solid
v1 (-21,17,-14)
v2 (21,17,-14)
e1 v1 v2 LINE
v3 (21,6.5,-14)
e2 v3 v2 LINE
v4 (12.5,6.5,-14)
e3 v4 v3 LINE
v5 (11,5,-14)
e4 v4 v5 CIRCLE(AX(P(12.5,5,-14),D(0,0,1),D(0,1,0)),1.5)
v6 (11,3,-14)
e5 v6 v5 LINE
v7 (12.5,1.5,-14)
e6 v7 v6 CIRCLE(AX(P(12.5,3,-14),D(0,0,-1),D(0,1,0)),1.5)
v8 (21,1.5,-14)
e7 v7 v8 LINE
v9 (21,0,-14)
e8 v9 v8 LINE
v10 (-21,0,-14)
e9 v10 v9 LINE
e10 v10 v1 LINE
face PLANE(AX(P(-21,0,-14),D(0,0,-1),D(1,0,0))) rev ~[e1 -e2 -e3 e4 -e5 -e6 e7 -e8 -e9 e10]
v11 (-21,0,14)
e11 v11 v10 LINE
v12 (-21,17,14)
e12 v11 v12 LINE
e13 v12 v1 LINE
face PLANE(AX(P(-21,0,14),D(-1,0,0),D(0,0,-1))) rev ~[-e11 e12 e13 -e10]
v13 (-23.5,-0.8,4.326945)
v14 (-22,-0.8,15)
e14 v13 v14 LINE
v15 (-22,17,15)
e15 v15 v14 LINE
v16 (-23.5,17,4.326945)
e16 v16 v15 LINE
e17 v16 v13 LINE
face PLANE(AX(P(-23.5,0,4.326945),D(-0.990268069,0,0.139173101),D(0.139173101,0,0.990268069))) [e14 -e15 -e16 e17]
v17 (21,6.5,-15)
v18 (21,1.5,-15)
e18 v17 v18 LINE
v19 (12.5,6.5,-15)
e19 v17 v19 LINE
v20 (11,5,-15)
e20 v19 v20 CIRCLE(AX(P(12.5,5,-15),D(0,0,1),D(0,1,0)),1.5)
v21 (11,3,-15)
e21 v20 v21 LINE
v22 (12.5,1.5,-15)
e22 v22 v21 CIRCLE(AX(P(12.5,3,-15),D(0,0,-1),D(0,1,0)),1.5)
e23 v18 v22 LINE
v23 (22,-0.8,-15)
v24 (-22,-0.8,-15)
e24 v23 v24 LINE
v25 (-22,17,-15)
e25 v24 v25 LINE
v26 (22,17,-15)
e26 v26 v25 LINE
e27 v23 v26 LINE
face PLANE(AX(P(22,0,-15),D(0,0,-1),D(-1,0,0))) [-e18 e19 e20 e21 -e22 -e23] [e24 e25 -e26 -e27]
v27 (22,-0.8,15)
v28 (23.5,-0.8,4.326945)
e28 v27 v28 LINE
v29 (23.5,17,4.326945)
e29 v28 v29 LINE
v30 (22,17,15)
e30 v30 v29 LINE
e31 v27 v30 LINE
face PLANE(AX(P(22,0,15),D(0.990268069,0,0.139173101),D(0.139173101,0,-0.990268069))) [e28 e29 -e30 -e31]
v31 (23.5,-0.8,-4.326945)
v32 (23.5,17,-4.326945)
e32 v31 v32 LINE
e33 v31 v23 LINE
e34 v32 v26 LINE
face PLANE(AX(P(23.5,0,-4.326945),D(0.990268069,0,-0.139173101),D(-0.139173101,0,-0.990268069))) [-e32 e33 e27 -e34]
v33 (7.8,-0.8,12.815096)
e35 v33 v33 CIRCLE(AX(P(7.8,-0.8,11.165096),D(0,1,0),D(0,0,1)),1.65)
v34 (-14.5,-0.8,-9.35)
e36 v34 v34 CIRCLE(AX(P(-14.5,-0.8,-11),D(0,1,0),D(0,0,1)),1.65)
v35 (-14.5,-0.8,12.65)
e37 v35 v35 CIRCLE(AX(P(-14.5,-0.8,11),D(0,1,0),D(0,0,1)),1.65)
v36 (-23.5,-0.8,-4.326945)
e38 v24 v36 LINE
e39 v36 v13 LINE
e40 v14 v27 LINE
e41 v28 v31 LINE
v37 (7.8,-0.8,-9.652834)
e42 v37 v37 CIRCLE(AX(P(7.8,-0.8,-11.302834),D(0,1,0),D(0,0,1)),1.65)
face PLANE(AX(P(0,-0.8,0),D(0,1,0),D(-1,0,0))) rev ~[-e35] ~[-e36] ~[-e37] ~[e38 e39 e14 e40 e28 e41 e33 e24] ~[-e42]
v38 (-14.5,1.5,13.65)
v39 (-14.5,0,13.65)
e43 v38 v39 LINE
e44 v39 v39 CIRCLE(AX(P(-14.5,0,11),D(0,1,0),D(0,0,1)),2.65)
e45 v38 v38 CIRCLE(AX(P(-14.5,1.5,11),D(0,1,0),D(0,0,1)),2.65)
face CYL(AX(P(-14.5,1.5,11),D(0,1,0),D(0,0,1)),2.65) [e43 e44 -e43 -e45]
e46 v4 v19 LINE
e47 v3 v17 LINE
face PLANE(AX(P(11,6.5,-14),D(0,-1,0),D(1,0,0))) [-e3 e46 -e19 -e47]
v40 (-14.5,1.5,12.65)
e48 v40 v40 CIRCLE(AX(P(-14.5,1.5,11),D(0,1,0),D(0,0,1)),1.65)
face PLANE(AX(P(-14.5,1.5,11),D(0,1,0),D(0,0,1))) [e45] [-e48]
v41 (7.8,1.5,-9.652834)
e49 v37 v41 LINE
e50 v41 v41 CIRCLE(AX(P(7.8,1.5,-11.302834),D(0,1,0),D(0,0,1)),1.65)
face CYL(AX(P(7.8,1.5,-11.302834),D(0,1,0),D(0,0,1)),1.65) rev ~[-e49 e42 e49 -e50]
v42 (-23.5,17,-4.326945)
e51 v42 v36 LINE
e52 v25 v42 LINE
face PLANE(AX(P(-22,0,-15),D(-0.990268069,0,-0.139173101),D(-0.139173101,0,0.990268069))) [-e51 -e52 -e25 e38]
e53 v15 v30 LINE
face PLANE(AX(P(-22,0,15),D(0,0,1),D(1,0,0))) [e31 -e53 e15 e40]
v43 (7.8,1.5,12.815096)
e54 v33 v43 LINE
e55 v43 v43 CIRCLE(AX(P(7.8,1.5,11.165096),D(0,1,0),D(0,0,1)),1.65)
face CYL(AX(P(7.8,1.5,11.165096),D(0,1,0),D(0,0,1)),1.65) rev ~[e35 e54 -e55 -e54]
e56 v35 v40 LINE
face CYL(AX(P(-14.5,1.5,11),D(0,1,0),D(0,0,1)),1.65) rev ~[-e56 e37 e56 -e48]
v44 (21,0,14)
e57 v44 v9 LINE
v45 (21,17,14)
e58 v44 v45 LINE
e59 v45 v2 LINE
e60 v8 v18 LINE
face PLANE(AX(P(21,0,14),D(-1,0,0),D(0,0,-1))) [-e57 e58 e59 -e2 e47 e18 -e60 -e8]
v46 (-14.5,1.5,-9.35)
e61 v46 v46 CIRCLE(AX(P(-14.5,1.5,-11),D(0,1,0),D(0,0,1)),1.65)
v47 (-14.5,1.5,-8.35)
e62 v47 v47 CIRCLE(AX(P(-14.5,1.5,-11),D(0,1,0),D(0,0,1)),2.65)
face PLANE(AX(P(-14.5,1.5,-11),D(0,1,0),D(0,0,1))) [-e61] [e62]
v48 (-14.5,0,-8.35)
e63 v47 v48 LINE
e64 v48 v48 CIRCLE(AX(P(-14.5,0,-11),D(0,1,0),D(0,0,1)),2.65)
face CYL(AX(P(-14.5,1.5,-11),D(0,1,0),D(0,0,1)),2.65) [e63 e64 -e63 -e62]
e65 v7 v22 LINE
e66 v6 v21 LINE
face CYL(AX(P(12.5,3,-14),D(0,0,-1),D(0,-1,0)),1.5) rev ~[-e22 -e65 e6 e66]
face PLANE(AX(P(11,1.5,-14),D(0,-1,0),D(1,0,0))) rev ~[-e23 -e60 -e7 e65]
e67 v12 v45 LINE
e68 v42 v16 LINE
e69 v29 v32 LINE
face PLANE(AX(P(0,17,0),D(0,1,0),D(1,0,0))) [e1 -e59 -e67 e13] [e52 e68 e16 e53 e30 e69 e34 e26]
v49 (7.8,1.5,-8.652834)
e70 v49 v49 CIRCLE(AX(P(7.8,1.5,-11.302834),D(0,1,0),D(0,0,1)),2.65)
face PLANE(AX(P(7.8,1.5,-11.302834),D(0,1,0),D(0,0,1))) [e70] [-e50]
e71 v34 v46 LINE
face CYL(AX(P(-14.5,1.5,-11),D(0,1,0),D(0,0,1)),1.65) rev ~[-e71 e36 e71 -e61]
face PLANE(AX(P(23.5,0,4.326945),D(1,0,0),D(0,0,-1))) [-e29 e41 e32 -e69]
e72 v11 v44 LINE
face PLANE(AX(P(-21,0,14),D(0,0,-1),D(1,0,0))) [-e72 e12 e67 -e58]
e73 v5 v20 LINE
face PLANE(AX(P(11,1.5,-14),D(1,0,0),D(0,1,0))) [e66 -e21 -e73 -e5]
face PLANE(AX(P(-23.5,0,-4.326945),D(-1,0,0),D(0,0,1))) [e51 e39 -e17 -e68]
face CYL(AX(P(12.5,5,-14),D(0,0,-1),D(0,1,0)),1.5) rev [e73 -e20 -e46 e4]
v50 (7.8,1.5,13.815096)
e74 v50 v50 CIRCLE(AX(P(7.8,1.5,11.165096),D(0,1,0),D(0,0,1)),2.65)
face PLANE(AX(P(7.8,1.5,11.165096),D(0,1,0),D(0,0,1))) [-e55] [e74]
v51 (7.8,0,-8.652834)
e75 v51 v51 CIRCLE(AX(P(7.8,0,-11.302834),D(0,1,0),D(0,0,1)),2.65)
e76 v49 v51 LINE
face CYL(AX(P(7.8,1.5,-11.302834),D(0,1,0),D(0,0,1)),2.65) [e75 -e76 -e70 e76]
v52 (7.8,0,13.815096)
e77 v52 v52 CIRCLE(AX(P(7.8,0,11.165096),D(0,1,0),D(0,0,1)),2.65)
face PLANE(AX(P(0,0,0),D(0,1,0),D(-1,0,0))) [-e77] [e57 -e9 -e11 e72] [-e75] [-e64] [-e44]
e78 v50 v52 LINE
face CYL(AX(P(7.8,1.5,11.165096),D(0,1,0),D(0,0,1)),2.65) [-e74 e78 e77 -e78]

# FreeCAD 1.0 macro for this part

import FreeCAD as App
import Part
import Sketcher
from FreeCAD import Vector
Q = App.Units.Quantity


def edges_at(feature, points):
    """Names of the edges that pass closest to the given points."""
    edges = feature.Shape.Edges
    near = lambda p: min(range(len(edges)), key=lambda i: edges[i].distToShape(Part.Vertex(*p))[0])
    return sorted({f"Edge{near(p) + 1}" for p in points})


def add_polygon(sketch, points):
    """Adds a closed chain of lines whose ends are joined by coincident constraints."""
    first, n = sketch.GeometryCount, len(points)
    for a, b in zip(points, points[1:] + points[:1]):
        sketch.addGeometry(Part.LineSegment(App.Vector(*a, 0), App.Vector(*b, 0)), False)
    for i in range(n):
        sketch.addConstraint(Sketcher.Constraint("Coincident", first + i, 2, first + (i + 1) % n, 1))

doc = App.newDocument("Part")
body = doc.addObject("PartDesign::Body", "Body")

sketch1 = doc.addObject("Sketcher::SketchObject", "Sketch")
body.addObject(sketch1)
sketch1.AttachmentSupport = (doc.XZ_Plane, [""])
sketch1.MapMode = "FlatFace"
add_polygon(sketch1, [(-22, -15), (-24, -4), (-24, 4), (-22, 15), (22, 15), (24, 4), (24, -4), (22, -15)])
add_polygon(sketch1, [(21, 14), (-21, 14), (-21, -14), (21, -14)])
sketch1.addConstraint(Sketcher.Constraint("Vertical", 1))
sketch1.addConstraint(Sketcher.Constraint("Horizontal", 3))
sketch1.addConstraint(Sketcher.Constraint("Vertical", 5))
sketch1.addConstraint(Sketcher.Constraint("Horizontal", 7))
sketch1.addConstraint(Sketcher.Constraint("Horizontal", 8))
sketch1.addConstraint(Sketcher.Constraint("Vertical", 9))
sketch1.addConstraint(Sketcher.Constraint("Horizontal", 10))
sketch1.addConstraint(Sketcher.Constraint("Vertical", 11))
sketch1.addConstraint(Sketcher.Constraint("Symmetric", 0, 2, 4, 2, -1, 1))
sketch1.addConstraint(Sketcher.Constraint("Symmetric", 2, 2, 6, 2, -1, 1))
sketch1.addConstraint(Sketcher.Constraint("Symmetric", 8, 2, 10, 2, -1, 1))
sketch1.addConstraint(Sketcher.Constraint("Parallel", 0, 4))
sketch1.addConstraint(Sketcher.Constraint("Parallel", 2, 6))
sketch1.addConstraint(Sketcher.Constraint("Horizontal", 1, 2, 4, 2))
sketch1.addConstraint(Sketcher.Constraint("Vertical", 3, 2, 6, 2))
sketch1.addConstraint(Sketcher.Constraint("DistanceX", 3, 1, 3, 2, Q("44 mm")))
sketch1.addConstraint(Sketcher.Constraint("DistanceX", 8, 2, 8, 1, Q("42 mm")))
sketch1.addConstraint(Sketcher.Constraint("DistanceY", 9, 2, 9, 1, Q("28 mm")))
sketch1.addConstraint(Sketcher.Constraint("Angle", 0, Q("98 deg")))
sketch1.addConstraint(Sketcher.Constraint("DistanceY", -1, 1, 2, 2, Q("15 mm")))
sketch1.addConstraint(Sketcher.Constraint("DistanceX", 1, 2, 4, 2, Q("47 mm")))
pad1 = doc.addObject("PartDesign::Pad", "Pad")
body.addObject(pad1)
pad1.Profile = sketch1
pad1.Length = 17
pad1.Reversed = True

sketch2 = doc.addObject("Sketcher::SketchObject", "Sketch001")
body.addObject(sketch2)
sketch2.AttachmentSupport = (doc.XZ_Plane, [""])
sketch2.MapMode = "FlatFace"
add_polygon(sketch2, [(22, 15), (-22, 15), (-24, 4), (-24, -4), (-22, -15), (22, -15), (24, -4), (24, 4)])
sketch2.addConstraint(Sketcher.Constraint("Horizontal", 0))
sketch2.addConstraint(Sketcher.Constraint("Vertical", 2))
sketch2.addConstraint(Sketcher.Constraint("Horizontal", 4))
sketch2.addConstraint(Sketcher.Constraint("Vertical", 6))
sketch2.addConstraint(Sketcher.Constraint("Symmetric", 0, 2, 4, 2, -1, 1))
sketch2.addConstraint(Sketcher.Constraint("Symmetric", 1, 2, 5, 2, -1, 1))
sketch2.addConstraint(Sketcher.Constraint("Parallel", 3, 7))
sketch2.addConstraint(Sketcher.Constraint("Horizontal", 2, 2, 5, 2))
sketch2.addConstraint(Sketcher.Constraint("Horizontal", 1, 2, 6, 2))
sketch2.addConstraint(Sketcher.Constraint("Vertical", 0, 2, 3, 2))
sketch2.addConstraint(Sketcher.Constraint("DistanceX", 0, 2, 0, 1, Q("44 mm")))
sketch2.addConstraint(Sketcher.Constraint("Angle", 1, Q("-98 deg")))
sketch2.addConstraint(Sketcher.Constraint("DistanceY", -1, 1, 0, 2, Q("15 mm")))
sketch2.addConstraint(Sketcher.Constraint("DistanceX", 2, 2, 5, 2, Q("47 mm")))
pad2 = doc.addObject("PartDesign::Pad", "Pad001")
body.addObject(pad2)
pad2.Profile = sketch2
pad2.Length = 0.8

sketch3 = doc.addObject("Sketcher::SketchObject", "Sketch002")
body.addObject(sketch3)
sketch3.AttachmentSupport = (doc.XZ_Plane, [""])
sketch3.MapMode = "FlatFace"
sketch3.addGeometry(Part.Circle(Vector(-14.5, -11, 0), Vector(0, 0, 1), 1.6), False)
sketch3.addGeometry(Part.Circle(Vector(7.8, -11.3, 0), Vector(0, 0, 1), 1.6), False)
sketch3.addGeometry(Part.Circle(Vector(-14.5, 11, 0), Vector(0, 0, 1), 1.6), False)
sketch3.addGeometry(Part.Circle(Vector(7.8, 11.2, 0), Vector(0, 0, 1), 1.6), False)
sketch3.addConstraint(Sketcher.Constraint("Equal", 0, 1))
sketch3.addConstraint(Sketcher.Constraint("Equal", 1, 2))
sketch3.addConstraint(Sketcher.Constraint("Equal", 2, 3))
sketch3.addConstraint(Sketcher.Constraint("Symmetric", 0, 3, 2, 3, -1))
sketch3.addConstraint(Sketcher.Constraint("Vertical", 1, 3, 3, 3))
sketch3.addConstraint(Sketcher.Constraint("Diameter", 0, Q("3.3 mm")))
sketch3.addConstraint(Sketcher.Constraint("DistanceY", 0, 3, -1, 1, Q("11 mm")))
sketch3.addConstraint(Sketcher.Constraint("DistanceX", 0, 3, -1, 1, Q("14.5 mm")))
sketch3.addConstraint(Sketcher.Constraint("DistanceX", -1, 1, 1, 3, Q("7.8 mm")))
sketch3.addConstraint(Sketcher.Constraint("DistanceY", 1, 3, 3, 3, Q("22.46793 mm")))
sketch3.addConstraint(Sketcher.Constraint("DistanceY", 1, 3, -1, 1, Q("11.302834 mm")))
pocket1 = doc.addObject("PartDesign::Pocket", "Pocket")
body.addObject(pocket1)
pocket1.Profile = sketch3
pocket1.Length = 10.8
pocket1.Reversed = True

sketch4 = doc.addObject("Sketcher::SketchObject", "Sketch003")
body.addObject(sketch4)
sketch4.AttachmentSupport = (doc.XY_Plane, [""])
sketch4.MapMode = "FlatFace"
sketch4.AttachmentOffset = App.Placement(Vector(0, 0, -14), App.Rotation())
add_polygon(sketch4, [(11, 6), (11, 2), (21, 2), (21, 6)])
sketch4.addConstraint(Sketcher.Constraint("Vertical", 0))
sketch4.addConstraint(Sketcher.Constraint("Horizontal", 1))
sketch4.addConstraint(Sketcher.Constraint("Vertical", 2))
sketch4.addConstraint(Sketcher.Constraint("Horizontal", 3))
sketch4.addConstraint(Sketcher.Constraint("DistanceX", 1, 1, 1, 2, Q("10 mm")))
sketch4.addConstraint(Sketcher.Constraint("DistanceY", 0, 2, 0, 1, Q("5 mm")))
sketch4.addConstraint(Sketcher.Constraint("DistanceX", -1, 1, 0, 2, Q("11 mm")))
sketch4.addConstraint(Sketcher.Constraint("DistanceY", -1, 1, 0, 2, Q("1.5 mm")))
pocket2 = doc.addObject("PartDesign::Pocket", "Pocket001")
body.addObject(pocket2)
pocket2.Profile = sketch4
pocket2.Length = 10.8
doc.recompute()

fillet = doc.addObject("PartDesign::Fillet", "Fillet")
body.addObject(fillet)
fillet.Base = (pocket2, edges_at(pocket2, [(11, 1.5, -14.5), (11, 6.5, -14.5)]))
fillet.Radius = 1.5

sketch5 = doc.addObject("Sketcher::SketchObject", "Sketch004")
body.addObject(sketch5)
sketch5.AttachmentSupport = (doc.XZ_Plane, [""])
sketch5.MapMode = "FlatFace"
sketch5.AttachmentOffset = App.Placement(Vector(0, 0, -1.5), App.Rotation())
sketch5.addGeometry(Part.Circle(Vector(-14.5, -11, 0), Vector(0, 0, 1), 2.6), False)
sketch5.addGeometry(Part.Circle(Vector(-14.5, -11, 0), Vector(0, 0, 1), 1.6), False)
sketch5.addGeometry(Part.Circle(Vector(7.8, -11.3, 0), Vector(0, 0, 1), 2.6), False)
sketch5.addGeometry(Part.Circle(Vector(7.8, -11.3, 0), Vector(0, 0, 1), 1.6), False)
sketch5.addGeometry(Part.Circle(Vector(7.8, 11.2, 0), Vector(0, 0, 1), 2.6), False)
sketch5.addGeometry(Part.Circle(Vector(7.8, 11.2, 0), Vector(0, 0, 1), 1.6), False)
sketch5.addGeometry(Part.Circle(Vector(-14.5, 11, 0), Vector(0, 0, 1), 2.6), False)
sketch5.addGeometry(Part.Circle(Vector(-14.5, 11, 0), Vector(0, 0, 1), 1.6), False)
sketch5.addConstraint(Sketcher.Constraint("Coincident", 1, 3, 0, 3))
sketch5.addConstraint(Sketcher.Constraint("Coincident", 3, 3, 2, 3))
sketch5.addConstraint(Sketcher.Constraint("Coincident", 5, 3, 4, 3))
sketch5.addConstraint(Sketcher.Constraint("Coincident", 7, 3, 6, 3))
sketch5.addConstraint(Sketcher.Constraint("Equal", 0, 2))
sketch5.addConstraint(Sketcher.Constraint("Equal", 1, 3))
sketch5.addConstraint(Sketcher.Constraint("Equal", 2, 4))
sketch5.addConstraint(Sketcher.Constraint("Equal", 3, 5))
sketch5.addConstraint(Sketcher.Constraint("Equal", 4, 6))
sketch5.addConstraint(Sketcher.Constraint("Equal", 5, 7))
sketch5.addConstraint(Sketcher.Constraint("Symmetric", 0, 3, 6, 3, -1))
sketch5.addConstraint(Sketcher.Constraint("Vertical", 3, 3, 4, 3))
sketch5.addConstraint(Sketcher.Constraint("Diameter", 0, Q("5.3 mm")))
sketch5.addConstraint(Sketcher.Constraint("Diameter", 1, Q("3.3 mm")))
sketch5.addConstraint(Sketcher.Constraint("DistanceY", 0, 3, -1, 1, Q("11 mm")))
sketch5.addConstraint(Sketcher.Constraint("DistanceX", 0, 3, -1, 1, Q("14.5 mm")))
sketch5.addConstraint(Sketcher.Constraint("DistanceX", -1, 1, 2, 3, Q("7.8 mm")))
sketch5.addConstraint(Sketcher.Constraint("DistanceY", 2, 3, 4, 3, Q("22.46793 mm")))
sketch5.addConstraint(Sketcher.Constraint("DistanceY", 2, 3, -1, 1, Q("11.302834 mm")))
pad3 = doc.addObject("PartDesign::Pad", "Pad002")
body.addObject(pad3)
pad3.Profile = sketch5
pad3.Length = 1.5

doc.recompute()
